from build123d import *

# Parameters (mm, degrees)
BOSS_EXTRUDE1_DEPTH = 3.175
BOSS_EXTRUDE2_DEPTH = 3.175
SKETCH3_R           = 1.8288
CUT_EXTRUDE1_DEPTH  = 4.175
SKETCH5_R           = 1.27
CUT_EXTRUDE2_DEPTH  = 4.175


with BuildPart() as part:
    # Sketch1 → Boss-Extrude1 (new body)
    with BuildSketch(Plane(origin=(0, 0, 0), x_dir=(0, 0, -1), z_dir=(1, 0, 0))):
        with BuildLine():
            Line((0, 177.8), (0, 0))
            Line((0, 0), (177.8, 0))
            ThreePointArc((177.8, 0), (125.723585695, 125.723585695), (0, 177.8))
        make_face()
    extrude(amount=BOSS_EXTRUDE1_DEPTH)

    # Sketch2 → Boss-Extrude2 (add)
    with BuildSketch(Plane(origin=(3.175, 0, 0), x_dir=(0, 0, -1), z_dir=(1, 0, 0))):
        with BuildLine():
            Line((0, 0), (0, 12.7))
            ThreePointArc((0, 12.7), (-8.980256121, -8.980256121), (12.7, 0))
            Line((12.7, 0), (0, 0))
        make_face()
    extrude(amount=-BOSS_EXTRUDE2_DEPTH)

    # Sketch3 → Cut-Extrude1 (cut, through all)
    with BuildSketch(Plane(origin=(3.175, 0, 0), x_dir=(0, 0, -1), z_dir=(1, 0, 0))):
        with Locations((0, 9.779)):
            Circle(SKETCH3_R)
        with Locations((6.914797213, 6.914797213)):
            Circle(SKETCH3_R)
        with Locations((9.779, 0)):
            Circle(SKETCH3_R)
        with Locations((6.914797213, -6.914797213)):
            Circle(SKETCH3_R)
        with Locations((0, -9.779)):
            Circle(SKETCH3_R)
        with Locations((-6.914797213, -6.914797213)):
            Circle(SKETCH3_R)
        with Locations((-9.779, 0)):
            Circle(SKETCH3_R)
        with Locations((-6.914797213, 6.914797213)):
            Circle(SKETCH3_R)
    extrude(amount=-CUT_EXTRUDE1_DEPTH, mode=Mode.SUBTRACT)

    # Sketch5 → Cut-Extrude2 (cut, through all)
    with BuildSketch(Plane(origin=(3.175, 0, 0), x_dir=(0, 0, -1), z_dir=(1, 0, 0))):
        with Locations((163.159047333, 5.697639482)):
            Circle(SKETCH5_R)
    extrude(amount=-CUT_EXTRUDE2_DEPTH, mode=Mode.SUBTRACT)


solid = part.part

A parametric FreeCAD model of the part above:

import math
import FreeCAD as App
import Part
import Sketcher
Q = App.Units.Quantity

doc = App.newDocument("Part")
body = doc.addObject("PartDesign::Body", "Body")

# Sketch on YZ plane
sketch1 = body.newObject("Sketcher::SketchObject", "Sketch")
sketch1.AttachmentSupport = (doc.getObject("YZ_Plane"), [""])
sketch1.MapMode = "FlatFace"
sketch1.addGeometry(Part.LineSegment(App.Vector(177.8, 0, 0), App.Vector(0, 0, 0)), False)
sketch1.addGeometry(Part.LineSegment(App.Vector(0, 0, 0), App.Vector(0, -177.8, 0)), False)
sketch1.addGeometry(Part.ArcOfCircle(Part.Circle(App.Vector(0, 0, 0), App.Vector(0, 0, 1), 177.8), math.radians(-90), math.radians(0)), False)
sketch1.addConstraint(Sketcher.Constraint("Coincident", 0, 2, 1, 1))
sketch1.addConstraint(Sketcher.Constraint("Coincident", 1, 2, 2, 1))
sketch1.addConstraint(Sketcher.Constraint("Coincident", 2, 2, 0, 1))
sketch1.addConstraint(Sketcher.Constraint("Horizontal", 0))
sketch1.addConstraint(Sketcher.Constraint("Vertical", 1))
sketch1.addConstraint(Sketcher.Constraint("Coincident", 2, 3, -1, 1))
sketch1.addConstraint(Sketcher.Constraint("Coincident", 0, 2, -1, 1))
sketch1.addConstraint(Sketcher.Constraint("Radius", 2, Q("7 in")))
pad1 = body.newObject("PartDesign::Pad", "Pad")
pad1.Profile = sketch1
pad1.Length = Q("0.125 in")

# Sketch on YZ plane
sketch2 = body.newObject("Sketcher::SketchObject", "Sketch001")
sketch2.AttachmentSupport = (doc.getObject("YZ_Plane"), [""])
sketch2.MapMode = "FlatFace"
sketch2.AttachmentOffset = App.Placement(App.Vector(0, 0, 0.125 * 25.4), App.Rotation())
sketch2.addGeometry(Part.LineSegment(App.Vector(0, 0, 0), App.Vector(12.7, 0, 0)), False)
sketch2.addGeometry(Part.ArcOfCircle(Part.Circle(App.Vector(0, 0, 0), App.Vector(0, 0, 1), 12.7), math.radians(0), math.radians(270)), False)
sketch2.addGeometry(Part.LineSegment(App.Vector(0, -12.7, 0), App.Vector(0, 0, 0)), False)
sketch2.addConstraint(Sketcher.Constraint("Coincident", 0, 2, 1, 1))
sketch2.addConstraint(Sketcher.Constraint("Coincident", 1, 2, 2, 1))
sketch2.addConstraint(Sketcher.Constraint("Coincident", 2, 2, 0, 1))
sketch2.addConstraint(Sketcher.Constraint("Horizontal", 0))
sketch2.addConstraint(Sketcher.Constraint("Vertical", 2))
sketch2.addConstraint(Sketcher.Constraint("Coincident", 1, 3, -1, 1))
sketch2.addConstraint(Sketcher.Constraint("Coincident", 2, 2, -1, 1))
sketch2.addConstraint(Sketcher.Constraint("Radius", 1, Q("0.5 in")))
pad2 = body.newObject("PartDesign::Pad", "Pad001")
pad2.Profile = sketch2
pad2.Length = Q("0.125 in")
pad2.Reversed = True

# Sketch on YZ plane
sketch3 = body.newObject("Sketcher::SketchObject", "Sketch002")
sketch3.AttachmentSupport = (doc.getObject("YZ_Plane"), [""])
sketch3.MapMode = "FlatFace"
sketch3.AttachmentOffset = App.Placement(App.Vector(0, 0, 0.125 * 25.4), App.Rotation())
sketch3.addGeometry(Part.Circle(App.Vector(9.779, 0, 0), App.Vector(0, 0, 1), 1.8288), False)
sketch3.addGeometry(Part.Circle(App.Vector(6.914797, -6.914797, 0), App.Vector(0, 0, 1), 1.8288), False)
sketch3.addGeometry(Part.Circle(App.Vector(0, -9.779, 0), App.Vector(0, 0, 1), 1.8288), False)
sketch3.addGeometry(Part.Circle(App.Vector(-6.914797, -6.914797, 0), App.Vector(0, 0, 1), 1.8288), False)
sketch3.addGeometry(Part.Circle(App.Vector(-9.779, 0, 0), App.Vector(0, 0, 1), 1.8288), False)
sketch3.addGeometry(Part.Circle(App.Vector(-6.914797, 6.914797, 0), App.Vector(0, 0, 1), 1.8288), False)
sketch3.addGeometry(Part.Circle(App.Vector(0, 9.779, 0), App.Vector(0, 0, 1), 1.8288), False)
sketch3.addGeometry(Part.Circle(App.Vector(6.914797, 6.914797, 0), App.Vector(0, 0, 1), 1.8288), False)
sketch3.addConstraint(Sketcher.Constraint("Equal", 0, 1))
sketch3.addConstraint(Sketcher.Constraint("Equal", 1, 2))
sketch3.addConstraint(Sketcher.Constraint("Equal", 2, 3))
sketch3.addConstraint(Sketcher.Constraint("Equal", 3, 4))
sketch3.addConstraint(Sketcher.Constraint("Equal", 4, 5))
sketch3.addConstraint(Sketcher.Constraint("Equal", 5, 6))
sketch3.addConstraint(Sketcher.Constraint("Equal", 6, 7))
sketch3.addConstraint(Sketcher.Constraint("Symmetric", 0, 3, 4, 3, -1, 1))
sketch3.addConstraint(Sketcher.Constraint("Symmetric", 1, 3, 5, 3, -1, 1))
sketch3.addConstraint(Sketcher.Constraint("Symmetric", 2, 3, 6, 3, -1, 1))
sketch3.addConstraint(Sketcher.Constraint("Symmetric", 3, 3, 7, 3, -1, 1))
sketch3.addConstraint(Sketcher.Constraint("Symmetric", 1, 3, 3, 3, -2))
sketch3.addConstraint(Sketcher.Constraint("PointOnObject", 0, 3, -1))
sketch3.addConstraint(Sketcher.Constraint("PointOnObject", 2, 3, -2))
sketch3.addConstraint(Sketcher.Constraint("Diameter", 0, Q("0.144 in")))
sketch3.addConstraint(Sketcher.Constraint("DistanceX", 4, 3, 0, 3, Q("0.77 in")))
sketch3.addConstraint(Sketcher.Constraint("DistanceY", 2, 3, -1, 1, Q("0.385 in")))
sketch3.addConstraint(Sketcher.Constraint("DistanceX", -1, 1, 1, 3, Q("6.914797 mm")))
sketch3.addConstraint(Sketcher.Constraint("DistanceY", 1, 3, -1, 1, Q("6.914797 mm")))
pocket1 = body.newObject("PartDesign::Pocket", "Pocket")
pocket1.Profile = sketch3
pocket1.Type = "ThroughAll"

# Sketch on YZ plane
sketch4 = body.newObject("Sketcher::SketchObject", "Sketch003")
sketch4.AttachmentSupport = (doc.getObject("YZ_Plane"), [""])
sketch4.MapMode = "FlatFace"
sketch4.AttachmentOffset = App.Placement(App.Vector(0, 0, 0.125 * 25.4), App.Rotation())
sketch4.addGeometry(Part.Circle(App.Vector(5.697639, -163.159047, 0), App.Vector(0, 0, 1), 1.27), False)
sketch4.addConstraint(Sketcher.Constraint("Diameter", 0, Q("0.1 in")))
sketch4.addConstraint(Sketcher.Constraint("DistanceX", -1, 1, 0, 3, Q("5.697639 mm")))
sketch4.addConstraint(Sketcher.Constraint("DistanceY", 0, 3, -1, 1, Q("163.159047 mm")))
pocket2 = body.newObject("PartDesign::Pocket", "Pocket001")
pocket2.Profile = sketch4
pocket2.Type = "ThroughAll"

doc.recompute()
